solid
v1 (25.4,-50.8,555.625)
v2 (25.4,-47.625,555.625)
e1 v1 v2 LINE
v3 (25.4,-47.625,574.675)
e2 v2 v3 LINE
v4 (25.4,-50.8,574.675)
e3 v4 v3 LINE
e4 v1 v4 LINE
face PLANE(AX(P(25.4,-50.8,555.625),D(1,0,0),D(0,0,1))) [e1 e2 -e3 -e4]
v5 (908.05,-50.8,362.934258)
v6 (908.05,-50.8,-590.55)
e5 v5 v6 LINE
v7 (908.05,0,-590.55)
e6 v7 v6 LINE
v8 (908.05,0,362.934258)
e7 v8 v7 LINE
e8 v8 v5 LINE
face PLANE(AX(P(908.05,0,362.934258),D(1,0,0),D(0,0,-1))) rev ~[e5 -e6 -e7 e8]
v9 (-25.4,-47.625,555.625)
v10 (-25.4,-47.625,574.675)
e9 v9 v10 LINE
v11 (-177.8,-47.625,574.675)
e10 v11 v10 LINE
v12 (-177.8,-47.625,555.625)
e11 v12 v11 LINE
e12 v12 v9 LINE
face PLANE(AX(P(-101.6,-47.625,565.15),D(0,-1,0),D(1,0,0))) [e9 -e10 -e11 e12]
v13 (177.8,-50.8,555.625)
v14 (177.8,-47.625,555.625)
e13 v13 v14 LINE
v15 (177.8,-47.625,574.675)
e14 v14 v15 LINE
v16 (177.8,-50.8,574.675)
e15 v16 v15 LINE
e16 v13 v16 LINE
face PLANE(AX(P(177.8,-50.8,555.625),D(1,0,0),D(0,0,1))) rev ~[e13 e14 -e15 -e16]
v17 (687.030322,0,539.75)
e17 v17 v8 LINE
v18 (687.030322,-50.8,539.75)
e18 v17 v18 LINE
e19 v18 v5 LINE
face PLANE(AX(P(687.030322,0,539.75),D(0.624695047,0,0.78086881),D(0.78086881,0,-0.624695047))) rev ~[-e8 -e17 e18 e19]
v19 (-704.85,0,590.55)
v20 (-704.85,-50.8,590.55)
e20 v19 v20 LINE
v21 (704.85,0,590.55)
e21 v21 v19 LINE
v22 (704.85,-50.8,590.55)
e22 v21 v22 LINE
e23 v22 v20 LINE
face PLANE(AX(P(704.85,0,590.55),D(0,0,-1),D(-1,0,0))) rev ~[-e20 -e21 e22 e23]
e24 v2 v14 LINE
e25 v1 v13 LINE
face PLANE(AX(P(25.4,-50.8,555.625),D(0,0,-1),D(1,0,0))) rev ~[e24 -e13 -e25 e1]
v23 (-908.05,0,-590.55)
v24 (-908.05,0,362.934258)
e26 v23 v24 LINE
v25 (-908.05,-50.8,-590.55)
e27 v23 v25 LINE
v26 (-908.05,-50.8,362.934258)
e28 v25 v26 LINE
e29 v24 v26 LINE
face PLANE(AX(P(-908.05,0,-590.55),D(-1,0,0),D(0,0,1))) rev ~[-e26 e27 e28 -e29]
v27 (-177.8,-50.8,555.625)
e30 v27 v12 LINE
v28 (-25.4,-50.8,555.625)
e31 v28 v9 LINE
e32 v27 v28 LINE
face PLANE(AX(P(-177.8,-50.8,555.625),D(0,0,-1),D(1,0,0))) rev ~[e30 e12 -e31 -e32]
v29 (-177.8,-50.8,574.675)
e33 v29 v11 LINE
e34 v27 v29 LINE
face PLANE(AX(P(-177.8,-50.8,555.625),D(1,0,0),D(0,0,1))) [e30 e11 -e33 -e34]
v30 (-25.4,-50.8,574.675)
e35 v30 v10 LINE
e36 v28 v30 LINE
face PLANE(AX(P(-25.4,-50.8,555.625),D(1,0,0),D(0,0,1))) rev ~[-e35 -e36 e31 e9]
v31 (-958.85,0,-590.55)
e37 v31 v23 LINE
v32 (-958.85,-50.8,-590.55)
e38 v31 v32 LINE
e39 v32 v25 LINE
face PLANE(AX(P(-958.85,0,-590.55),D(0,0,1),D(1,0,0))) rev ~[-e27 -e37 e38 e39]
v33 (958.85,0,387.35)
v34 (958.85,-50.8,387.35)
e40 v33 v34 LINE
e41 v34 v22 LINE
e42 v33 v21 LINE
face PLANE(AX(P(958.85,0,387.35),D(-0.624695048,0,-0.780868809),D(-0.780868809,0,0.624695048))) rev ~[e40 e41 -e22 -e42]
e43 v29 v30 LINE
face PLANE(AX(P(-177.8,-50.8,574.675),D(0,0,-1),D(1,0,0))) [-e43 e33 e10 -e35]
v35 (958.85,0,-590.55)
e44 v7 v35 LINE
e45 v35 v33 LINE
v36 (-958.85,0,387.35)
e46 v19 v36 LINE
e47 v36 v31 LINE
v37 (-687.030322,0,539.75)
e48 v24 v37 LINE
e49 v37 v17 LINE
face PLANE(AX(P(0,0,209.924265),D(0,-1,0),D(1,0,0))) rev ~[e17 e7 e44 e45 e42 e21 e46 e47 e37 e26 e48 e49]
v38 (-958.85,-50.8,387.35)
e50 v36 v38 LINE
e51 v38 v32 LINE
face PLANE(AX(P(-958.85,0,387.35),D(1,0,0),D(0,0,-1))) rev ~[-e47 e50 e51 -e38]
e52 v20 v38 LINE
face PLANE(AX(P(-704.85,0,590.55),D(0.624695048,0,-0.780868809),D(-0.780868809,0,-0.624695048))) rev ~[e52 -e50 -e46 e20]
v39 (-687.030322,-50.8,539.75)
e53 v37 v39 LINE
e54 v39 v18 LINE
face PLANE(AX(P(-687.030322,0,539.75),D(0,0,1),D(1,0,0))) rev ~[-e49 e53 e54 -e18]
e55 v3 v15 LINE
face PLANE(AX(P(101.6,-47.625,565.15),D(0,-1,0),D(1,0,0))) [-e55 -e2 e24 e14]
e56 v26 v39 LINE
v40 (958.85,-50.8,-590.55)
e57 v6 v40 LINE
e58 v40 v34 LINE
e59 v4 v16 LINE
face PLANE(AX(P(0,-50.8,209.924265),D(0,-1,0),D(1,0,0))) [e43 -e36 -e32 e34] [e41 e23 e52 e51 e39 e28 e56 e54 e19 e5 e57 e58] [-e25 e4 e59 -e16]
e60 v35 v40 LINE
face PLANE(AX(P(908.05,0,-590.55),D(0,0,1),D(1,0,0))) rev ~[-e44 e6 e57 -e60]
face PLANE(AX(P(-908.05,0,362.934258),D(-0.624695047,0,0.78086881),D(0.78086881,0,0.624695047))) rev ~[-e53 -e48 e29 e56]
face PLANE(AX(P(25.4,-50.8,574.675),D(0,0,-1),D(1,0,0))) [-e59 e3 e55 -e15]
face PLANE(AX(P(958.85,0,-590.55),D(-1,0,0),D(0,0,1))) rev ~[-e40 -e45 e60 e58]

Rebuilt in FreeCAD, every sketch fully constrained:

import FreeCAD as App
import Part
import Sketcher
from FreeCAD import Vector
Q = App.Units.Quantity

doc = App.newDocument("Part")
body = doc.addObject("PartDesign::Body", "Body")

sketch1 = body.newObject("Sketcher::SketchObject", "Sketch")
sketch1.AttachmentSupport = (doc.getObject("XZ_Plane"), [""])
sketch1.MapMode = "FlatFace"
sketch1.addGeometry([
    Part.LineSegment(Vector(959, 387, 0), Vector(705, 591, 0)),
    Part.LineSegment(Vector(705, 591, 0), Vector(-705, 591, 0)),
    Part.LineSegment(Vector(-705, 591, 0), Vector(-959, 387, 0)),
    Part.LineSegment(Vector(-959, 387, 0), Vector(-959, -591, 0)),
    Part.LineSegment(Vector(-959, -591, 0), Vector(-908, -591, 0)),
    Part.LineSegment(Vector(-908, -591, 0), Vector(-908, 363, 0)),
    Part.LineSegment(Vector(-908, 363, 0), Vector(-687, 540, 0)),
    Part.LineSegment(Vector(-687, 540, 0), Vector(687, 540, 0)),
    Part.LineSegment(Vector(687, 540, 0), Vector(908, 363, 0)),
    Part.LineSegment(Vector(908, 363, 0), Vector(908, -591, 0)),
    Part.LineSegment(Vector(908, -591, 0), Vector(959, -591, 0)),
    Part.LineSegment(Vector(959, -591, 0), Vector(959, 387, 0)),
], False)
sketch1.addConstraint([
    Sketcher.Constraint("Coincident", 0, 2, 1, 1),
    Sketcher.Constraint("Coincident", 1, 2, 2, 1),
    Sketcher.Constraint("Coincident", 2, 2, 3, 1),
    Sketcher.Constraint("Coincident", 3, 2, 4, 1),
    Sketcher.Constraint("Coincident", 4, 2, 5, 1),
    Sketcher.Constraint("Coincident", 5, 2, 6, 1),
    Sketcher.Constraint("Coincident", 6, 2, 7, 1),
    Sketcher.Constraint("Coincident", 7, 2, 8, 1),
    Sketcher.Constraint("Coincident", 8, 2, 9, 1),
    Sketcher.Constraint("Coincident", 9, 2, 10, 1),
    Sketcher.Constraint("Coincident", 10, 2, 11, 1),
    Sketcher.Constraint("Coincident", 11, 2, 0, 1),
    Sketcher.Constraint("Horizontal", 1),
    Sketcher.Constraint("Vertical", 3),
    Sketcher.Constraint("Horizontal", 4),
    Sketcher.Constraint("Vertical", 5),
    Sketcher.Constraint("Horizontal", 7),
    Sketcher.Constraint("Vertical", 9),
    Sketcher.Constraint("Horizontal", 10),
    Sketcher.Constraint("Vertical", 11),
    Sketcher.Constraint("Symmetric", 5, 2, 8, 2, -2),
    Sketcher.Constraint("Symmetric", 3, 2, 10, 2, -2),
    Sketcher.Constraint("Parallel", 2, 6),
    Sketcher.Constraint("Parallel", 0, 8),
    Sketcher.Constraint("Horizontal", 2, 2, 11, 2),
    Sketcher.Constraint("Equal", 0, 2),
    Sketcher.Constraint("DistanceX", 4, 1, 4, 2, Q("2 in")),
    Sketcher.Constraint("DistanceX", 1, 2, 1, 1, Q("55.5 in")),
    Sketcher.Constraint("DistanceY", 3, 2, 3, 1, Q("38.5 in")),
    Sketcher.Constraint("DistanceX", 2, 2, 1, 2, Q("10 in")),
    Sketcher.Constraint("DistanceY", 2, 2, 1, 2, Q("8 in")),
    Sketcher.Constraint("DistanceY", 6, 2, 1, 2, Q("2 in")),
    Sketcher.Constraint("DistanceY", -1, 1, 0, 2, Q("23.25 in")),
    Sketcher.Constraint("DistanceY", 5, 1, 5, 2, 953.484258),
])
pad1 = body.newObject("PartDesign::Pad", "Pad")
pad1.Profile = sketch1
pad1.Length = Q("2 in")

sketch2 = body.newObject("Sketcher::SketchObject", "Sketch001")
sketch2.AttachmentSupport = (doc.getObject("XZ_Plane"), [""])
sketch2.MapMode = "FlatFace"
sketch2.AttachmentOffset = App.Placement(Vector(0, 0, 2 * 25.4), App.Rotation())
sketch2.addGeometry([
    Part.LineSegment(Vector(-178, 575, 0), Vector(-178, 556, 0)),
    Part.LineSegment(Vector(-178, 556, 0), Vector(-25, 556, 0)),
    Part.LineSegment(Vector(-25, 556, 0), Vector(-25, 575, 0)),
    Part.LineSegment(Vector(-25, 575, 0), Vector(-178, 575, 0)),
    Part.LineSegment(Vector(25, 575, 0), Vector(25, 556, 0)),
    Part.LineSegment(Vector(25, 556, 0), Vector(178, 556, 0)),
    Part.LineSegment(Vector(178, 556, 0), Vector(178, 575, 0)),
    Part.LineSegment(Vector(178, 575, 0), Vector(25, 575, 0)),
], False)
sketch2.addConstraint([
    Sketcher.Constraint("Coincident", 0, 2, 1, 1),
    Sketcher.Constraint("Coincident", 1, 2, 2, 1),
    Sketcher.Constraint("Coincident", 2, 2, 3, 1),
    Sketcher.Constraint("Coincident", 3, 2, 0, 1),
    Sketcher.Constraint("Coincident", 4, 2, 5, 1),
    Sketcher.Constraint("Coincident", 5, 2, 6, 1),
    Sketcher.Constraint("Coincident", 6, 2, 7, 1),
    Sketcher.Constraint("Coincident", 7, 2, 4, 1),
    Sketcher.Constraint("Vertical", 0),
    Sketcher.Constraint("Horizontal", 1),
    Sketcher.Constraint("Vertical", 2),
    Sketcher.Constraint("Horizontal", 3),
    Sketcher.Constraint("Vertical", 4),
    Sketcher.Constraint("Horizontal", 5),
    Sketcher.Constraint("Vertical", 6),
    Sketcher.Constraint("Horizontal", 7),
    Sketcher.Constraint("Symmetric", 1, 2, 4, 2, -2),
    Sketcher.Constraint("Symmetric", 3, 2, 6, 2, -2),
    Sketcher.Constraint("DistanceX", 1, 1, 1, 2, Q("6 in")),
    Sketcher.Constraint("DistanceX", 0, 2, -1, 1, Q("7 in")),
    Sketcher.Constraint("DistanceY", 0, 2, 0, 1, Q("0.75 in")),
    Sketcher.Constraint("DistanceY", -1, 1, 0, 2, Q("21.875 in")),
])
pocket1 = body.newObject("PartDesign::Pocket", "Pocket")
pocket1.Profile = sketch2
pocket1.Length = Q("0.125 in")

doc.recompute()
